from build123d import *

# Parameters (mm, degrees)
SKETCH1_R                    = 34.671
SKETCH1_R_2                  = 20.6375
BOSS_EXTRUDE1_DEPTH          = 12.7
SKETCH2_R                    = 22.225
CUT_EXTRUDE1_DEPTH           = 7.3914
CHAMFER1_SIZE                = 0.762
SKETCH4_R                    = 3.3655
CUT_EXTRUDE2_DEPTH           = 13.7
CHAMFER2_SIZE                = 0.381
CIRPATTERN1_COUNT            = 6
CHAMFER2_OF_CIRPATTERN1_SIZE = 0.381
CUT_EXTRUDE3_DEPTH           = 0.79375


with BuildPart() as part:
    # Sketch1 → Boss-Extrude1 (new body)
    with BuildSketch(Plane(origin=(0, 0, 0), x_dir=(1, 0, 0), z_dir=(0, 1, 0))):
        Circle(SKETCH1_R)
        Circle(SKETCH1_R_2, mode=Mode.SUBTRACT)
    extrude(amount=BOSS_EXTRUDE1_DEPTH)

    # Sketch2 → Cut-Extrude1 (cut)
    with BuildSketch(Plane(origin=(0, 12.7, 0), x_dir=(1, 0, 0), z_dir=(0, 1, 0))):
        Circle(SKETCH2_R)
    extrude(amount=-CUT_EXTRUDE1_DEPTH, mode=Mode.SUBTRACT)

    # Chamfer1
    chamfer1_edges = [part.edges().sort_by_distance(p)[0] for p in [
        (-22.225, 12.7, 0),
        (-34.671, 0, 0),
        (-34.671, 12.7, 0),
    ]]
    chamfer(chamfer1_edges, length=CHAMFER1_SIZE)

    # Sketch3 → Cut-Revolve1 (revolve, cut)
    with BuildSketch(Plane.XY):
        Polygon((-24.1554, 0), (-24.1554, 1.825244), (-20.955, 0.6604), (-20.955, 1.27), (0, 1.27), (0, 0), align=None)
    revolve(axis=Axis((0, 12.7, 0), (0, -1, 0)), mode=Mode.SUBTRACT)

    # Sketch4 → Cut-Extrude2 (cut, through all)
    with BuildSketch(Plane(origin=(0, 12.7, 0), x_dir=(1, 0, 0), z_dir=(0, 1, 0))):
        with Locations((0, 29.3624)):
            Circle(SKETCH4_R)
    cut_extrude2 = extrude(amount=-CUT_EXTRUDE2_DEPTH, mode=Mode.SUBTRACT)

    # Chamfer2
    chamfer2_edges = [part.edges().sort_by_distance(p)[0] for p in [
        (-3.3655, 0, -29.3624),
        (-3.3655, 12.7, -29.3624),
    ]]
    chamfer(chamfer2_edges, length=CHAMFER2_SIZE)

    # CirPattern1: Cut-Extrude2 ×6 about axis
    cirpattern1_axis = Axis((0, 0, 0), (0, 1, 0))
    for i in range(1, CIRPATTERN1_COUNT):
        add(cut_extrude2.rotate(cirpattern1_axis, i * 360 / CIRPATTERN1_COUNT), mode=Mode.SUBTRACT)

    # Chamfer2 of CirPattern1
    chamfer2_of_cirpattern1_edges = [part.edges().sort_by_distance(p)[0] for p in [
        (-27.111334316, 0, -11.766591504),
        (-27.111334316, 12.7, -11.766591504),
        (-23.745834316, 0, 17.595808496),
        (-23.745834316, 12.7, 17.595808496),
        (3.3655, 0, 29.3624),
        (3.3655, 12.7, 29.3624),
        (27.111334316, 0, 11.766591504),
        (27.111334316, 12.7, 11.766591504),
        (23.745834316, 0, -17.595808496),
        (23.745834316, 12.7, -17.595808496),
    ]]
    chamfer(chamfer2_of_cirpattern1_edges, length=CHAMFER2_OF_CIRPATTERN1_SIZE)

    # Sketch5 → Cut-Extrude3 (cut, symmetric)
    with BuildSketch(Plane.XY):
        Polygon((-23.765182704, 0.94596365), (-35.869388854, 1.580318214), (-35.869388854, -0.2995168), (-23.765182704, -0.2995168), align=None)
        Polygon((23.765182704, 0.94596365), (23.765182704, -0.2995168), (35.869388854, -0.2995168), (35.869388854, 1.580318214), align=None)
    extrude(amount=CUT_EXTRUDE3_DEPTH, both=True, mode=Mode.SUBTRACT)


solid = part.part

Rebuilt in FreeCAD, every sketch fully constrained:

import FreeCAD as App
import Part
import Sketcher

V = App.Vector
Q = App.Units.Quantity


def edges_at(feature, points):
    """Names of the edges that pass closest to the given points."""
    edges = feature.Shape.Edges
    near = lambda p: min(range(len(edges)), key=lambda i: edges[i].distToShape(Part.Vertex(*p))[0])
    return sorted({f"Edge{near(p) + 1}" for p in points})


def add_polygon(sketch, points):
    """Adds a closed chain of lines whose ends are joined by coincident constraints."""
    first, n = sketch.GeometryCount, len(points)
    for a, b in zip(points, points[1:] + points[:1]):
        sketch.addGeometry(Part.LineSegment(App.Vector(*a, 0), App.Vector(*b, 0)), False)
    for i in range(n):
        sketch.addConstraint(Sketcher.Constraint("Coincident", first + i, 2, first + (i + 1) % n, 1))

doc = App.newDocument("Part")
body = doc.addObject("PartDesign::Body", "Body")

sketch1 = body.newObject("Sketcher::SketchObject", "Sketch")
sketch1.AttachmentSupport = (doc.getObject("XZ_Plane"), [""])
sketch1.MapMode = "FlatFace"
sketch1.addGeometry([
    Part.Circle(V(0, 0, 0), V(0, 0, 1), 34.671),
    Part.Circle(V(0, 0, 0), V(0, 0, 1), 20.6375),
], False)
sketch1.addConstraint([
    Sketcher.Constraint("Coincident", 0, 3, -1, 1),
    Sketcher.Constraint("Coincident", 1, 3, -1, 1),
    Sketcher.Constraint("Diameter", 0, Q("2.73 in")),
    Sketcher.Constraint("Diameter", 1, Q("1.625 in")),
])
pad1 = body.newObject("PartDesign::Pad", "Pad")
pad1.Profile = sketch1
pad1.Length = Q("0.5 in")
pad1.Reversed = True

sketch2 = body.newObject("Sketcher::SketchObject", "Sketch001")
sketch2.AttachmentSupport = (doc.getObject("XZ_Plane"), [""])
sketch2.MapMode = "FlatFace"
sketch2.AttachmentOffset = App.Placement(V(0, 0, -0.5 * 25.4), App.Rotation())
sketch2.addGeometry(Part.Circle(V(0, 0, 0), V(0, 0, 1), 22.225), False)
sketch2.addConstraint([
    Sketcher.Constraint("Coincident", 0, 3, -1, 1),
    Sketcher.Constraint("Diameter", 0, Q("1.75 in")),
])
pocket1 = body.newObject("PartDesign::Pocket", "Pocket")
pocket1.Profile = sketch2
pocket1.Length = Q("0.291 in")
pocket1.Reversed = True
doc.recompute()

chamfer = body.newObject("PartDesign::Chamfer", "Chamfer")
chamfer.Base = (pocket1, edges_at(pocket1, [(-22.225, 12.7, 0), (-34.671, 0, 0), (-34.671, 12.7, 0)]))
chamfer.Size = Q("0.03 in")

sketch3 = body.newObject("Sketcher::SketchObject", "Sketch002")
sketch3.AttachmentSupport = (doc.getObject("XY_Plane"), [""])
sketch3.MapMode = "FlatFace"
add_polygon(sketch3, [(-24.1554, 1.825244), (-24.1554, 0), (0, 0), (0, 1.27), (-20.955, 1.27), (-20.955, 0.6604)])
sketch3.addConstraint([
    Sketcher.Constraint("Vertical", 0),
    Sketcher.Constraint("Horizontal", 1),
    Sketcher.Constraint("Vertical", 2),
    Sketcher.Constraint("Horizontal", 3),
    Sketcher.Constraint("Vertical", 4),
    Sketcher.Constraint("Coincident", 1, 2, -1, 1),
    Sketcher.Constraint("DistanceY", 2, 1, 2, 2, Q("0.05 in")),
    Sketcher.Constraint("DistanceX", 1, 1, 1, 2, Q("0.951 in")),
    Sketcher.Constraint("DistanceX", 3, 2, 3, 1, Q("0.825 in")),
    Sketcher.Constraint("DistanceY", 4, 2, 4, 1, Q("0.024 in")),
    Sketcher.Constraint("DistanceY", 0, 2, 0, 1, 1.825244),
])
groove = body.newObject("PartDesign::Groove", "Groove")
groove.Profile = sketch3
groove.ReferenceAxis = (sketch3, ["V_Axis"])
groove.Angle = 360

sketch4 = body.newObject("Sketcher::SketchObject", "Sketch003")
sketch4.AttachmentSupport = (doc.getObject("XZ_Plane"), [""])
sketch4.MapMode = "FlatFace"
sketch4.AttachmentOffset = App.Placement(V(0, 0, -0.5 * 25.4), App.Rotation())
sketch4.addGeometry(Part.Circle(V(0, -29.3624, 0), V(0, 0, 1), 3.3655), False)
sketch4.addConstraint([
    Sketcher.Constraint("PointOnObject", 0, 3, -2),
    Sketcher.Constraint("Diameter", 0, Q("0.265 in")),
    Sketcher.Constraint("DistanceY", 0, 3, -1, 1, Q("1.156 in")),
])
pocket2 = body.newObject("PartDesign::Pocket", "Pocket001")
pocket2.Profile = sketch4
pocket2.Type = "ThroughAll"
pocket2.Reversed = True
doc.recompute()

chamfer2 = body.newObject("PartDesign::Chamfer", "Chamfer001")
chamfer2.Base = (pocket2, edges_at(pocket2, [(-3.365, 0, -29.362), (-3.365, 12.7, -29.362)]))
chamfer2.Size = Q("0.015 in")
doc.recompute()

polarpattern = body.newObject("PartDesign::PolarPattern", "PolarPattern")
polarpattern.Originals = [pocket2]
polarpattern.Axis = (doc.getObject("Y_Axis"), [""])
polarpattern.Angle = 360
polarpattern.Occurrences = 6
body.Tip = polarpattern
doc.recompute()

chamfer3 = body.newObject("PartDesign::Chamfer", "Chamfer002")
chamfer3.Base = (polarpattern, edges_at(polarpattern, [
    (-27.111, 0, -11.767),
    (-27.111, 12.7, -11.767),
    (-23.746, 0, 17.596),
    (-23.746, 12.7, 17.596),
    (3.365, 0, 29.362),
    (3.365, 12.7, 29.362),
    (27.111, 0, 11.767),
    (27.111, 12.7, 11.767),
    (23.746, 0, -17.596),
    (23.746, 12.7, -17.596),
]))
chamfer3.Size = Q("0.015 in")

sketch5 = body.newObject("Sketcher::SketchObject", "Sketch004")
sketch5.AttachmentSupport = (doc.getObject("XY_Plane"), [""])
sketch5.MapMode = "FlatFace"
add_polygon(sketch5, [(-23.765183, 0.945964), (-35.869389, 1.580318), (-35.869389, -0.299517), (-23.765183, -0.299517)])
add_polygon(sketch5, [(23.765183, 0.945964), (23.765183, -0.299517), (35.869389, -0.299517), (35.869389, 1.580318)])
sketch5.addConstraint([
    Sketcher.Constraint("Vertical", 1),
    Sketcher.Constraint("Horizontal", 2),
    Sketcher.Constraint("Vertical", 3),
    Sketcher.Constraint("Vertical", 4),
    Sketcher.Constraint("Horizontal", 5),
    Sketcher.Constraint("Vertical", 6),
    Sketcher.Constraint("Symmetric", 2, 2, 4, 2, -2),
    Sketcher.Constraint("Symmetric", 0, 2, 6, 2, -2),
    Sketcher.Constraint("Horizontal", 3, 2, 7, 2),
    Sketcher.Constraint("Angle", 0, Q("177 deg")),
    Sketcher.Constraint("DistanceY", 3, 1, 3, 2, 1.24548),
    Sketcher.Constraint("DistanceX", 2, 1, 2, 2, 12.104206),
    Sketcher.Constraint("DistanceX", 0, 2, -1, 1, 35.869389),
    Sketcher.Constraint("DistanceY", -1, 1, 0, 2, 1.580318),
])
pocket3 = body.newObject("PartDesign::Pocket", "Pocket002")
pocket3.Profile = sketch5
pocket3.Length = Q("0.0625 in")
pocket3.Midplane = True

doc.recompute()
